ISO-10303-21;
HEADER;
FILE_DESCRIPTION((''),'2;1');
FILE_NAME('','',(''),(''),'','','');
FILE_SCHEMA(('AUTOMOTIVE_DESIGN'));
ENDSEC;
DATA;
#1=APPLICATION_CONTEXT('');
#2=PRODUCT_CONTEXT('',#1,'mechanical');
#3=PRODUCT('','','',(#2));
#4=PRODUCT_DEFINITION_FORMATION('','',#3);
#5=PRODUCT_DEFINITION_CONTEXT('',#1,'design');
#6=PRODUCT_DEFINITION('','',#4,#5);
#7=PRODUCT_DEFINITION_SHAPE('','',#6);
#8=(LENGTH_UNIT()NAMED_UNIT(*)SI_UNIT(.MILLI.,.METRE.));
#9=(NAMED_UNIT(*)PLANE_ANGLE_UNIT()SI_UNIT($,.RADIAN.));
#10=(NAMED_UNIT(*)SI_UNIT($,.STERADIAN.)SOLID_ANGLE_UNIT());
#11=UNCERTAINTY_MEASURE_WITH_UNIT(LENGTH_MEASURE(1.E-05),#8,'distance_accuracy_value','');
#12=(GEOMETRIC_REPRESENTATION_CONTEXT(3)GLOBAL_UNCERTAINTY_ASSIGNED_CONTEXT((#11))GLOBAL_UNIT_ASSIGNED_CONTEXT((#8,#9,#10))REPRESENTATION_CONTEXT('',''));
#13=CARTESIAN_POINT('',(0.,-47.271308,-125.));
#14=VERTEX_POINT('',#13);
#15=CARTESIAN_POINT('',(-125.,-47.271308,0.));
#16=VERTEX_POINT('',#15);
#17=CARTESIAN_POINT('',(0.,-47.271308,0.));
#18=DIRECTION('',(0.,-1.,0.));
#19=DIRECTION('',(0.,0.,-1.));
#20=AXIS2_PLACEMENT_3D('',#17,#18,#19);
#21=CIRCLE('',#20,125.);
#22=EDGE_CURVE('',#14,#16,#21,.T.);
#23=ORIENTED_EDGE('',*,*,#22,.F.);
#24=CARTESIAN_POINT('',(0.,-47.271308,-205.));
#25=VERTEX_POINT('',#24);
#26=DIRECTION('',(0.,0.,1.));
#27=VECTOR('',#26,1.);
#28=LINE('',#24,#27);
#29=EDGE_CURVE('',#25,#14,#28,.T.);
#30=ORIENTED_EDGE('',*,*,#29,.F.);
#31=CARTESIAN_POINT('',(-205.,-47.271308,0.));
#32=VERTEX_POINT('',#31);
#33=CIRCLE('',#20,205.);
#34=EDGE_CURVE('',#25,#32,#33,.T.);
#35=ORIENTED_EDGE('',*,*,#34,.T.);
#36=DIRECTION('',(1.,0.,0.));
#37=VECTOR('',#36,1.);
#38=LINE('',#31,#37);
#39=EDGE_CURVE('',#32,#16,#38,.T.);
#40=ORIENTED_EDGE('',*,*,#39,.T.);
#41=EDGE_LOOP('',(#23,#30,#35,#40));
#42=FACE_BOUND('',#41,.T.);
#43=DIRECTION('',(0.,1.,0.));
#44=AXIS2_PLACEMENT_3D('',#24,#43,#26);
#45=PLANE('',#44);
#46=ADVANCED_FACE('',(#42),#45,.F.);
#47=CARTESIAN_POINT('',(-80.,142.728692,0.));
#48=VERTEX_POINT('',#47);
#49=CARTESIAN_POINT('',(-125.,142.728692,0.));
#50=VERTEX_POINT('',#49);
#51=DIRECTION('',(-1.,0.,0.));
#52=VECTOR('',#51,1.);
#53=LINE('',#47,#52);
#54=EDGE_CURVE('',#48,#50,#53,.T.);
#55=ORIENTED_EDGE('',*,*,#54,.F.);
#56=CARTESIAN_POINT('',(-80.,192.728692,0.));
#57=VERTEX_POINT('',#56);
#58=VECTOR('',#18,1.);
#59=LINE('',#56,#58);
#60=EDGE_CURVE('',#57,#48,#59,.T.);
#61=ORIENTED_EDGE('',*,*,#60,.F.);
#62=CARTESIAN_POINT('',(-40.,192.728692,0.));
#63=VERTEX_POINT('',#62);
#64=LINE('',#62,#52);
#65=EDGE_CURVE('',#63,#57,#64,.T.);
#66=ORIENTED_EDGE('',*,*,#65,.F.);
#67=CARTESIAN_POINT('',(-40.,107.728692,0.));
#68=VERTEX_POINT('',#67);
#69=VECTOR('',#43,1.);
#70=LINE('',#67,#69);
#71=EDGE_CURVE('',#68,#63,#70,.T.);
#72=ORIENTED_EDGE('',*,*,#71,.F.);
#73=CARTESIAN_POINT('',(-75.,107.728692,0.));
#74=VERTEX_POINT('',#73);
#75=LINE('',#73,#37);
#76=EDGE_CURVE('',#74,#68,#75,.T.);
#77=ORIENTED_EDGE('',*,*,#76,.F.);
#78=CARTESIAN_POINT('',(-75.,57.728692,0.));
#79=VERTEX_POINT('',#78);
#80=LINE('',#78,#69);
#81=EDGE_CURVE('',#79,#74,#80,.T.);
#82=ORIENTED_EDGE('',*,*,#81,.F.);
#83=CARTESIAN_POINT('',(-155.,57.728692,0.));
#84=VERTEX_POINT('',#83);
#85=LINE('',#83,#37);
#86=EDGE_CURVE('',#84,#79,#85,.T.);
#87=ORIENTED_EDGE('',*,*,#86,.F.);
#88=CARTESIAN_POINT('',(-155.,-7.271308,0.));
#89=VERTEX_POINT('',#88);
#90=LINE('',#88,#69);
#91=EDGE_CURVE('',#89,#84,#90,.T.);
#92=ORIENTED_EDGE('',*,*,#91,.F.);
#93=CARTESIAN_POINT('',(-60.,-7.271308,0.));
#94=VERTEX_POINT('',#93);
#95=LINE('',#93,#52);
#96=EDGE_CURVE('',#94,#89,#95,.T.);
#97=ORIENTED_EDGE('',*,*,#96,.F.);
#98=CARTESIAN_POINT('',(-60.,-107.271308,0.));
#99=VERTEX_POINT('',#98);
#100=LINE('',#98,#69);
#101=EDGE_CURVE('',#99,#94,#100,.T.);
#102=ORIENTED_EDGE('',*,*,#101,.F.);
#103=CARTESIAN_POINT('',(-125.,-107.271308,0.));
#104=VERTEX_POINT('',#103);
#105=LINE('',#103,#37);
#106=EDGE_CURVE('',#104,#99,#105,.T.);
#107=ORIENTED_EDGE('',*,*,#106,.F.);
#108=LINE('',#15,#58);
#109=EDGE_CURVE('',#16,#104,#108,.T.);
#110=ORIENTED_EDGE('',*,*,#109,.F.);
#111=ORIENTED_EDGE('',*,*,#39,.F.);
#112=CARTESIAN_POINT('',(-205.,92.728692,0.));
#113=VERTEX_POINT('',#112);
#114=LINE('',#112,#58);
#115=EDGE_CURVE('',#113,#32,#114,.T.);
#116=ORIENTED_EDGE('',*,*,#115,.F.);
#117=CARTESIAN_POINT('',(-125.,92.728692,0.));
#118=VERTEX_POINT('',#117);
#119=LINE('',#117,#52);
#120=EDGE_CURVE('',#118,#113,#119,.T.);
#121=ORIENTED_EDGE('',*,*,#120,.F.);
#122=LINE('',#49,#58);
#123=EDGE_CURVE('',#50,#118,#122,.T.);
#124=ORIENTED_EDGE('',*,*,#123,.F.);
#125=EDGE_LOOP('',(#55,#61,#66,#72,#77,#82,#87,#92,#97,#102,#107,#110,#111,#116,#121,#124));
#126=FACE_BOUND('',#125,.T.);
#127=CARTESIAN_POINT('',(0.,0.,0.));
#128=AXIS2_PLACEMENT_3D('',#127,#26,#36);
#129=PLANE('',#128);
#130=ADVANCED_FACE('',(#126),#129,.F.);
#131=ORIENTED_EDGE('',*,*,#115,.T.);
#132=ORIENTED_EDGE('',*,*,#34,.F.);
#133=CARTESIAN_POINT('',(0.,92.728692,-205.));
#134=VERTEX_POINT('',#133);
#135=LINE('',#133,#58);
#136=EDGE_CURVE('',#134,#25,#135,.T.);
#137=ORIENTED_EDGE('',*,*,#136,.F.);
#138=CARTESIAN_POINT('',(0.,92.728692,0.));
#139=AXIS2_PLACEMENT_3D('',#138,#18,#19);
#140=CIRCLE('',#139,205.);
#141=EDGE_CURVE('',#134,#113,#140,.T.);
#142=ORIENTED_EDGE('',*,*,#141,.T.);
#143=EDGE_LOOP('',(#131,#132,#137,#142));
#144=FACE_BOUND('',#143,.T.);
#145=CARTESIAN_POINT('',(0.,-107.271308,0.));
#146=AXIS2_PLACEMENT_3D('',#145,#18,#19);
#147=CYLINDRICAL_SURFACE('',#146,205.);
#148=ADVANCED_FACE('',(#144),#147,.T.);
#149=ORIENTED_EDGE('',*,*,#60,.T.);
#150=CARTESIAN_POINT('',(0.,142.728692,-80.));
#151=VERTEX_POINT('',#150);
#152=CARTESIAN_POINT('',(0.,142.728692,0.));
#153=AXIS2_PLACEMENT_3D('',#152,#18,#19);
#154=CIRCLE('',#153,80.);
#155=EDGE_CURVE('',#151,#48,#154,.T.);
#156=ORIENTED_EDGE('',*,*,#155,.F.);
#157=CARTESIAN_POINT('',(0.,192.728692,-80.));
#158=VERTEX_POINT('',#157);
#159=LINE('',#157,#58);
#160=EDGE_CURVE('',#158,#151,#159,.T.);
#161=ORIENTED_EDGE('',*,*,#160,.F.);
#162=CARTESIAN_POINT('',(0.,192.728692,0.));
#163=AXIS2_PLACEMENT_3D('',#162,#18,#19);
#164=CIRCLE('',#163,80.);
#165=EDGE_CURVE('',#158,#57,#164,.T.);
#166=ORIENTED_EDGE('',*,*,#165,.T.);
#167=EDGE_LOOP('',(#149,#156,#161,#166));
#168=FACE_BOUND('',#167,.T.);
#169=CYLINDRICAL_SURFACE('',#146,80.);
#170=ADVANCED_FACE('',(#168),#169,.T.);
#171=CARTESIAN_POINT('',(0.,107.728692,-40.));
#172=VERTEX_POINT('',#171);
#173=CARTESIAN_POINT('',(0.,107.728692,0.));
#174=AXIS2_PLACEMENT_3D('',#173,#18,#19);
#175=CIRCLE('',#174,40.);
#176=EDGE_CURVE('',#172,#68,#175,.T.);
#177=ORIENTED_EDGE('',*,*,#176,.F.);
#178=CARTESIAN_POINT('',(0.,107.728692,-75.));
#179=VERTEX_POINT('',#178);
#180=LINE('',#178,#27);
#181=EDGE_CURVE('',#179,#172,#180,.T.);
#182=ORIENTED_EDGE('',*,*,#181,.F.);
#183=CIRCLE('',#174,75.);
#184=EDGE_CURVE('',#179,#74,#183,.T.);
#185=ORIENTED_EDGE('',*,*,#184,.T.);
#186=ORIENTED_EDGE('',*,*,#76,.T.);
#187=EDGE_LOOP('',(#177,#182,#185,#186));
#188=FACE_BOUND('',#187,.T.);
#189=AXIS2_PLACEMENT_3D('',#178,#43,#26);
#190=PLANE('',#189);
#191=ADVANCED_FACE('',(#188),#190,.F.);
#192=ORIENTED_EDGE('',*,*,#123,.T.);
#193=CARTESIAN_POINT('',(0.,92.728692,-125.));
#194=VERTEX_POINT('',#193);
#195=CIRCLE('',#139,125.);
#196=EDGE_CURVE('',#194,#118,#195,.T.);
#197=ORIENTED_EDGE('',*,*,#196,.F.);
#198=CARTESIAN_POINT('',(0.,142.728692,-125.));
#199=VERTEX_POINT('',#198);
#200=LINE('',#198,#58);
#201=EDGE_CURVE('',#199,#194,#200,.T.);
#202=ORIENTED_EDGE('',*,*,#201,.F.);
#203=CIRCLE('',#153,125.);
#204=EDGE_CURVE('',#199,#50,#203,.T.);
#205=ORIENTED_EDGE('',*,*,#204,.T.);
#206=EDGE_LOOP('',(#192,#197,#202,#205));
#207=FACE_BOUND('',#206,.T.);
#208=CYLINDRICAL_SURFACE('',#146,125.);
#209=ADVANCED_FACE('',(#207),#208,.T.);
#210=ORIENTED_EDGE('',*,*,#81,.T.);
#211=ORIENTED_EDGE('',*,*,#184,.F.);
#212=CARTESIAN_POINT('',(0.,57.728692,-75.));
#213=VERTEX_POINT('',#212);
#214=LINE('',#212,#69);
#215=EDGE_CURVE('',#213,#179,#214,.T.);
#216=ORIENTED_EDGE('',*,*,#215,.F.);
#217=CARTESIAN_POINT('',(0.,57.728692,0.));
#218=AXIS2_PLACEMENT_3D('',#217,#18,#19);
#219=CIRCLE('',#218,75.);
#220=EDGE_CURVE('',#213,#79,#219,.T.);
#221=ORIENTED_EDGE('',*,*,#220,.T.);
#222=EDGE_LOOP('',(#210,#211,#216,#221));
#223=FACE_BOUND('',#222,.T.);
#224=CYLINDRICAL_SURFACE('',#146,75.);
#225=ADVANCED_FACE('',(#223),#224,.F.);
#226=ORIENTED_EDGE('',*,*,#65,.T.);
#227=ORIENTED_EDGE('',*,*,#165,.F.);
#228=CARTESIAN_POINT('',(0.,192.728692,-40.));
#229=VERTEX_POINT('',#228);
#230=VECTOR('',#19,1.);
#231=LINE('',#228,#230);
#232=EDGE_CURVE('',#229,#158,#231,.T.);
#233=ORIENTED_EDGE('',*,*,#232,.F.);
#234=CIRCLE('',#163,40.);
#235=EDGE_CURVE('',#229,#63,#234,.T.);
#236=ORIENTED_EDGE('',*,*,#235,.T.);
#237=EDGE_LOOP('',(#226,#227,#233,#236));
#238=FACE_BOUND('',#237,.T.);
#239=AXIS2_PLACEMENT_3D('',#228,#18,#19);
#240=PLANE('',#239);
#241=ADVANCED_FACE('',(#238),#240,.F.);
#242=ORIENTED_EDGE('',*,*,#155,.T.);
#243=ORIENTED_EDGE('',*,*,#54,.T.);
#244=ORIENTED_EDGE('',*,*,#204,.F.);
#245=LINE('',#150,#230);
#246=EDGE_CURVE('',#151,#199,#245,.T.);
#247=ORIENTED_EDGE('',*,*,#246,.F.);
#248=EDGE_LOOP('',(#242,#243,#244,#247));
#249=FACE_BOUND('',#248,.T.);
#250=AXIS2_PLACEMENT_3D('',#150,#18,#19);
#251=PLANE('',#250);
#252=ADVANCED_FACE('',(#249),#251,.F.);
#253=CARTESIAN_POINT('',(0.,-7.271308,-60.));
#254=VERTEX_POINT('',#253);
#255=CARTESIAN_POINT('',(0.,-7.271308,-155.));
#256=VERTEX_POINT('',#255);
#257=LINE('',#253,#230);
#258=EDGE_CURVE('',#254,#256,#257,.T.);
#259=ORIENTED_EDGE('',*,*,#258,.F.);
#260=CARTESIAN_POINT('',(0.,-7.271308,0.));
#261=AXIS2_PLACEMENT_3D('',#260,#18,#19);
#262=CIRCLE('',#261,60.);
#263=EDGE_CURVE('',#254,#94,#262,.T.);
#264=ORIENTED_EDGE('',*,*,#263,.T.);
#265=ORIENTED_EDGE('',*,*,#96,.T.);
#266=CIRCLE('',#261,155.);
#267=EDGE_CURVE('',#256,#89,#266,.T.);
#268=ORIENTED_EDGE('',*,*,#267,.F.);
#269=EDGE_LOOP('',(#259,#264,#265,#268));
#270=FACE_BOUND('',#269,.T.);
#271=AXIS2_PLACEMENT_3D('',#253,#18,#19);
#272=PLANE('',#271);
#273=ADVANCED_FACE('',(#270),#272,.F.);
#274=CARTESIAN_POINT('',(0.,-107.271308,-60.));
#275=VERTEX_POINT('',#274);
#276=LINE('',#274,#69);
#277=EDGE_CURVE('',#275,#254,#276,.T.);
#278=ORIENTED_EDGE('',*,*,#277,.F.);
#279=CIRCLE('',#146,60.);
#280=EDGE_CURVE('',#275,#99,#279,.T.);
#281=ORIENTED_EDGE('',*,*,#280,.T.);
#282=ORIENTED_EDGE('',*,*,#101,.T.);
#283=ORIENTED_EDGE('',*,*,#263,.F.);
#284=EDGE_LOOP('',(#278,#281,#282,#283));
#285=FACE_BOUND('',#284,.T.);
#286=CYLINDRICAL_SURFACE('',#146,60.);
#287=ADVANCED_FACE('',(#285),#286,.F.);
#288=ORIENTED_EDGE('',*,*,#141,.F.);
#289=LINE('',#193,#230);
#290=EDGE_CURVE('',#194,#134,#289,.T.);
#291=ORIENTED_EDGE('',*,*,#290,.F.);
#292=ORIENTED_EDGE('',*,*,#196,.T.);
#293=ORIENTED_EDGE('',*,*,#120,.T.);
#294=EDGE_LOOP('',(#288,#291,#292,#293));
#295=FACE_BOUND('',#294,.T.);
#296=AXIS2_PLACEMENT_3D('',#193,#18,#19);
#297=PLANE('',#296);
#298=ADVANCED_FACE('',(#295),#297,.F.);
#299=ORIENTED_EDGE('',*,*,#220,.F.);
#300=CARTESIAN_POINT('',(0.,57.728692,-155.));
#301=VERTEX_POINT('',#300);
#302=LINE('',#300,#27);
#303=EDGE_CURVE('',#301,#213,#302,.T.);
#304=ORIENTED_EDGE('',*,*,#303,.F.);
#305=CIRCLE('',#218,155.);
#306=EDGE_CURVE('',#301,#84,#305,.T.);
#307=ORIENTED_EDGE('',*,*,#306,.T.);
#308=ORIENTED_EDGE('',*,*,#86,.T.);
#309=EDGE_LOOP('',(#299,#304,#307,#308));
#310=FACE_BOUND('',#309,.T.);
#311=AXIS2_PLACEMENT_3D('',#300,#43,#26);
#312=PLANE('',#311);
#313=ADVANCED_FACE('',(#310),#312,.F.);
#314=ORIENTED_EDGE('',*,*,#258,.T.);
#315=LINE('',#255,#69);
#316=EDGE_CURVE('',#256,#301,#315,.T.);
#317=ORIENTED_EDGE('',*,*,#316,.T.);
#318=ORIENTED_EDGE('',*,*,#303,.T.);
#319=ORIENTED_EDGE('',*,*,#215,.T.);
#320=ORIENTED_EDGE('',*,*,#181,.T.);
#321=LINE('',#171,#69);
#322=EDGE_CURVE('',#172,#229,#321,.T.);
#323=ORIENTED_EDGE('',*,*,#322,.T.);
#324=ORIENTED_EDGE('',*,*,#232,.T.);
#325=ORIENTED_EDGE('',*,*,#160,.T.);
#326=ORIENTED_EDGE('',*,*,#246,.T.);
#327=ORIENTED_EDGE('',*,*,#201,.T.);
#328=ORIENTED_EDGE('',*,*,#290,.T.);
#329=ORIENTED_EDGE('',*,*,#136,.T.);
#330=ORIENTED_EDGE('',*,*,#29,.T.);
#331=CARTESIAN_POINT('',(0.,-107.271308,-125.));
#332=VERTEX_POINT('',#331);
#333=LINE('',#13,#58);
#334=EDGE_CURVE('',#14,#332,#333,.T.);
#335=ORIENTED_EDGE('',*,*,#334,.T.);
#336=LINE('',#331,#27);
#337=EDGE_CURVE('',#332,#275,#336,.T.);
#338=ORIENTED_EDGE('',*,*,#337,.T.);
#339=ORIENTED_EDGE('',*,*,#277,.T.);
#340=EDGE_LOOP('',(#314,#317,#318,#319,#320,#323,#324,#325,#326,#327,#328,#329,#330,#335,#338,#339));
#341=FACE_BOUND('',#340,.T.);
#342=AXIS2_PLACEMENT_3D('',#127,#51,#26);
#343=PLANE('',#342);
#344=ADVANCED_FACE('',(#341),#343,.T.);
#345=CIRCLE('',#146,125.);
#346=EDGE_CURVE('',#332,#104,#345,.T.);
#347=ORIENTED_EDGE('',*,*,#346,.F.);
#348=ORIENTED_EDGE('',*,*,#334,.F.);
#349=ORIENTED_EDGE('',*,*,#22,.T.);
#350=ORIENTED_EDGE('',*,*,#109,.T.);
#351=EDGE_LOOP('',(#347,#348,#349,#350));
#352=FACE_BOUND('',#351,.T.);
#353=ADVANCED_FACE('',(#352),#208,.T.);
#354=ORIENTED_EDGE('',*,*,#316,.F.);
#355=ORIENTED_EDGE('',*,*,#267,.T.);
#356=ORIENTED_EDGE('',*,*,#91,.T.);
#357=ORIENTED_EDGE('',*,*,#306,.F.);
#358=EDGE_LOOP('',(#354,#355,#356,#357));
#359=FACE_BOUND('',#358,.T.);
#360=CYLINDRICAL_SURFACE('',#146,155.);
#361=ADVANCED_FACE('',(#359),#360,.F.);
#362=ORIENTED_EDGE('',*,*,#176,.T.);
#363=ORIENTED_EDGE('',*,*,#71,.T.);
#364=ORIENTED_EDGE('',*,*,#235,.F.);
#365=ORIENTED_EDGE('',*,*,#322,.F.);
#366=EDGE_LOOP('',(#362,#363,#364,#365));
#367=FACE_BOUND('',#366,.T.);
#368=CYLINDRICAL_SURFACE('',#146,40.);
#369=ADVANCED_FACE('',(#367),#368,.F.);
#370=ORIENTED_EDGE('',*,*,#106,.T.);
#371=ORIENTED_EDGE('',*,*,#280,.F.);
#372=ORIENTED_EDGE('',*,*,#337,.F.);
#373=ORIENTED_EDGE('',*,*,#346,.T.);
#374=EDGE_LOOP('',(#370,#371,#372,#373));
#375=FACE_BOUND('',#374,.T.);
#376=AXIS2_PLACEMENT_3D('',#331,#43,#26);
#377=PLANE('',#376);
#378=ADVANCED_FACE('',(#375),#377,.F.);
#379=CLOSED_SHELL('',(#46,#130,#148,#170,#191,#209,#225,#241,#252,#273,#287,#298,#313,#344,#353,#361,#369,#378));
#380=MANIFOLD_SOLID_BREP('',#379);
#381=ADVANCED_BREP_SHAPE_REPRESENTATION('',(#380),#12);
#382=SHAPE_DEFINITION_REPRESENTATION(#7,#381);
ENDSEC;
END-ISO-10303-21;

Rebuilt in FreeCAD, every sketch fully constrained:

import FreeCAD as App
import Part
import Sketcher


def add_polygon(sketch, points):
    """Adds a closed chain of lines whose ends are joined by coincident constraints."""
    first, n = sketch.GeometryCount, len(points)
    for a, b in zip(points, points[1:] + points[:1]):
        sketch.addGeometry(Part.LineSegment(App.Vector(*a, 0), App.Vector(*b, 0)), False)
    for i in range(n):
        sketch.addConstraint(Sketcher.Constraint("Coincident", first + i, 2, first + (i + 1) % n, 1))

doc = App.newDocument("Part")
body = doc.addObject("PartDesign::Body", "Body")

sketch1 = body.newObject("Sketcher::SketchObject", "Sketch")
sketch1.AttachmentSupport = (doc.getObject("XY_Plane"), [""])
sketch1.MapMode = "FlatFace"
add_polygon(sketch1, [(-40, 192.728692), (-80, 192.728692), (-80, 142.728692), (-125, 142.728692), (-125, 92.728692), (-205, 92.728692), (-205, -47.271308), (-125, -47.271308), (-125, -107.271308), (-60, -107.271308), (-60, -7.271308), (-155, -7.271308), (-155, 57.728692), (-75, 57.728692), (-75, 107.728692), (-40, 107.728692)])
sketch1.addConstraint([
    Sketcher.Constraint("Horizontal", 0),
    Sketcher.Constraint("Vertical", 1),
    Sketcher.Constraint("Horizontal", 2),
    Sketcher.Constraint("Vertical", 3),
    Sketcher.Constraint("Horizontal", 4),
    Sketcher.Constraint("Vertical", 5),
    Sketcher.Constraint("Horizontal", 6),
    Sketcher.Constraint("Vertical", 7),
    Sketcher.Constraint("Horizontal", 8),
    Sketcher.Constraint("Vertical", 9),
    Sketcher.Constraint("Horizontal", 10),
    Sketcher.Constraint("Vertical", 11),
    Sketcher.Constraint("Horizontal", 12),
    Sketcher.Constraint("Vertical", 13),
    Sketcher.Constraint("Horizontal", 14),
    Sketcher.Constraint("Vertical", 15),
    Sketcher.Constraint("Vertical", 3, 2, 6, 2),
    Sketcher.Constraint("Equal", 6, 12),
    Sketcher.Constraint("Equal", 1, 3),
    Sketcher.Constraint("Equal", 8, 11),
    Sketcher.Constraint("Equal", 3, 13),
    Sketcher.Constraint("DistanceX", 0, 2, 0, 1, 40.0),
    Sketcher.Constraint("DistanceX", 2, 2, 2, 1, 45.0),
    Sketcher.Constraint("DistanceX", 4, 2, 4, 1, 80.0),
    Sketcher.Constraint("DistanceX", 8, 1, 8, 2, 65.0),
    Sketcher.Constraint("DistanceX", 10, 2, 10, 1, 95.0),
    Sketcher.Constraint("DistanceY", 1, 2, 1, 1, 50.0),
    Sketcher.Constraint("DistanceY", 5, 2, 5, 1, 140.0),
    Sketcher.Constraint("DistanceY", 7, 2, 7, 1, 60.0),
    Sketcher.Constraint("DistanceY", 9, 1, 9, 2, 100.0),
    Sketcher.Constraint("DistanceX", 0, 2, -1, 1, 80.0),
    Sketcher.Constraint("DistanceY", -1, 1, 0, 2, 192.728692),
])
revolution = body.newObject("PartDesign::Revolution", "Revolution")
revolution.Profile = sketch1
revolution.ReferenceAxis = (sketch1, ["V_Axis"])
revolution.Angle = 270

doc.recompute()
